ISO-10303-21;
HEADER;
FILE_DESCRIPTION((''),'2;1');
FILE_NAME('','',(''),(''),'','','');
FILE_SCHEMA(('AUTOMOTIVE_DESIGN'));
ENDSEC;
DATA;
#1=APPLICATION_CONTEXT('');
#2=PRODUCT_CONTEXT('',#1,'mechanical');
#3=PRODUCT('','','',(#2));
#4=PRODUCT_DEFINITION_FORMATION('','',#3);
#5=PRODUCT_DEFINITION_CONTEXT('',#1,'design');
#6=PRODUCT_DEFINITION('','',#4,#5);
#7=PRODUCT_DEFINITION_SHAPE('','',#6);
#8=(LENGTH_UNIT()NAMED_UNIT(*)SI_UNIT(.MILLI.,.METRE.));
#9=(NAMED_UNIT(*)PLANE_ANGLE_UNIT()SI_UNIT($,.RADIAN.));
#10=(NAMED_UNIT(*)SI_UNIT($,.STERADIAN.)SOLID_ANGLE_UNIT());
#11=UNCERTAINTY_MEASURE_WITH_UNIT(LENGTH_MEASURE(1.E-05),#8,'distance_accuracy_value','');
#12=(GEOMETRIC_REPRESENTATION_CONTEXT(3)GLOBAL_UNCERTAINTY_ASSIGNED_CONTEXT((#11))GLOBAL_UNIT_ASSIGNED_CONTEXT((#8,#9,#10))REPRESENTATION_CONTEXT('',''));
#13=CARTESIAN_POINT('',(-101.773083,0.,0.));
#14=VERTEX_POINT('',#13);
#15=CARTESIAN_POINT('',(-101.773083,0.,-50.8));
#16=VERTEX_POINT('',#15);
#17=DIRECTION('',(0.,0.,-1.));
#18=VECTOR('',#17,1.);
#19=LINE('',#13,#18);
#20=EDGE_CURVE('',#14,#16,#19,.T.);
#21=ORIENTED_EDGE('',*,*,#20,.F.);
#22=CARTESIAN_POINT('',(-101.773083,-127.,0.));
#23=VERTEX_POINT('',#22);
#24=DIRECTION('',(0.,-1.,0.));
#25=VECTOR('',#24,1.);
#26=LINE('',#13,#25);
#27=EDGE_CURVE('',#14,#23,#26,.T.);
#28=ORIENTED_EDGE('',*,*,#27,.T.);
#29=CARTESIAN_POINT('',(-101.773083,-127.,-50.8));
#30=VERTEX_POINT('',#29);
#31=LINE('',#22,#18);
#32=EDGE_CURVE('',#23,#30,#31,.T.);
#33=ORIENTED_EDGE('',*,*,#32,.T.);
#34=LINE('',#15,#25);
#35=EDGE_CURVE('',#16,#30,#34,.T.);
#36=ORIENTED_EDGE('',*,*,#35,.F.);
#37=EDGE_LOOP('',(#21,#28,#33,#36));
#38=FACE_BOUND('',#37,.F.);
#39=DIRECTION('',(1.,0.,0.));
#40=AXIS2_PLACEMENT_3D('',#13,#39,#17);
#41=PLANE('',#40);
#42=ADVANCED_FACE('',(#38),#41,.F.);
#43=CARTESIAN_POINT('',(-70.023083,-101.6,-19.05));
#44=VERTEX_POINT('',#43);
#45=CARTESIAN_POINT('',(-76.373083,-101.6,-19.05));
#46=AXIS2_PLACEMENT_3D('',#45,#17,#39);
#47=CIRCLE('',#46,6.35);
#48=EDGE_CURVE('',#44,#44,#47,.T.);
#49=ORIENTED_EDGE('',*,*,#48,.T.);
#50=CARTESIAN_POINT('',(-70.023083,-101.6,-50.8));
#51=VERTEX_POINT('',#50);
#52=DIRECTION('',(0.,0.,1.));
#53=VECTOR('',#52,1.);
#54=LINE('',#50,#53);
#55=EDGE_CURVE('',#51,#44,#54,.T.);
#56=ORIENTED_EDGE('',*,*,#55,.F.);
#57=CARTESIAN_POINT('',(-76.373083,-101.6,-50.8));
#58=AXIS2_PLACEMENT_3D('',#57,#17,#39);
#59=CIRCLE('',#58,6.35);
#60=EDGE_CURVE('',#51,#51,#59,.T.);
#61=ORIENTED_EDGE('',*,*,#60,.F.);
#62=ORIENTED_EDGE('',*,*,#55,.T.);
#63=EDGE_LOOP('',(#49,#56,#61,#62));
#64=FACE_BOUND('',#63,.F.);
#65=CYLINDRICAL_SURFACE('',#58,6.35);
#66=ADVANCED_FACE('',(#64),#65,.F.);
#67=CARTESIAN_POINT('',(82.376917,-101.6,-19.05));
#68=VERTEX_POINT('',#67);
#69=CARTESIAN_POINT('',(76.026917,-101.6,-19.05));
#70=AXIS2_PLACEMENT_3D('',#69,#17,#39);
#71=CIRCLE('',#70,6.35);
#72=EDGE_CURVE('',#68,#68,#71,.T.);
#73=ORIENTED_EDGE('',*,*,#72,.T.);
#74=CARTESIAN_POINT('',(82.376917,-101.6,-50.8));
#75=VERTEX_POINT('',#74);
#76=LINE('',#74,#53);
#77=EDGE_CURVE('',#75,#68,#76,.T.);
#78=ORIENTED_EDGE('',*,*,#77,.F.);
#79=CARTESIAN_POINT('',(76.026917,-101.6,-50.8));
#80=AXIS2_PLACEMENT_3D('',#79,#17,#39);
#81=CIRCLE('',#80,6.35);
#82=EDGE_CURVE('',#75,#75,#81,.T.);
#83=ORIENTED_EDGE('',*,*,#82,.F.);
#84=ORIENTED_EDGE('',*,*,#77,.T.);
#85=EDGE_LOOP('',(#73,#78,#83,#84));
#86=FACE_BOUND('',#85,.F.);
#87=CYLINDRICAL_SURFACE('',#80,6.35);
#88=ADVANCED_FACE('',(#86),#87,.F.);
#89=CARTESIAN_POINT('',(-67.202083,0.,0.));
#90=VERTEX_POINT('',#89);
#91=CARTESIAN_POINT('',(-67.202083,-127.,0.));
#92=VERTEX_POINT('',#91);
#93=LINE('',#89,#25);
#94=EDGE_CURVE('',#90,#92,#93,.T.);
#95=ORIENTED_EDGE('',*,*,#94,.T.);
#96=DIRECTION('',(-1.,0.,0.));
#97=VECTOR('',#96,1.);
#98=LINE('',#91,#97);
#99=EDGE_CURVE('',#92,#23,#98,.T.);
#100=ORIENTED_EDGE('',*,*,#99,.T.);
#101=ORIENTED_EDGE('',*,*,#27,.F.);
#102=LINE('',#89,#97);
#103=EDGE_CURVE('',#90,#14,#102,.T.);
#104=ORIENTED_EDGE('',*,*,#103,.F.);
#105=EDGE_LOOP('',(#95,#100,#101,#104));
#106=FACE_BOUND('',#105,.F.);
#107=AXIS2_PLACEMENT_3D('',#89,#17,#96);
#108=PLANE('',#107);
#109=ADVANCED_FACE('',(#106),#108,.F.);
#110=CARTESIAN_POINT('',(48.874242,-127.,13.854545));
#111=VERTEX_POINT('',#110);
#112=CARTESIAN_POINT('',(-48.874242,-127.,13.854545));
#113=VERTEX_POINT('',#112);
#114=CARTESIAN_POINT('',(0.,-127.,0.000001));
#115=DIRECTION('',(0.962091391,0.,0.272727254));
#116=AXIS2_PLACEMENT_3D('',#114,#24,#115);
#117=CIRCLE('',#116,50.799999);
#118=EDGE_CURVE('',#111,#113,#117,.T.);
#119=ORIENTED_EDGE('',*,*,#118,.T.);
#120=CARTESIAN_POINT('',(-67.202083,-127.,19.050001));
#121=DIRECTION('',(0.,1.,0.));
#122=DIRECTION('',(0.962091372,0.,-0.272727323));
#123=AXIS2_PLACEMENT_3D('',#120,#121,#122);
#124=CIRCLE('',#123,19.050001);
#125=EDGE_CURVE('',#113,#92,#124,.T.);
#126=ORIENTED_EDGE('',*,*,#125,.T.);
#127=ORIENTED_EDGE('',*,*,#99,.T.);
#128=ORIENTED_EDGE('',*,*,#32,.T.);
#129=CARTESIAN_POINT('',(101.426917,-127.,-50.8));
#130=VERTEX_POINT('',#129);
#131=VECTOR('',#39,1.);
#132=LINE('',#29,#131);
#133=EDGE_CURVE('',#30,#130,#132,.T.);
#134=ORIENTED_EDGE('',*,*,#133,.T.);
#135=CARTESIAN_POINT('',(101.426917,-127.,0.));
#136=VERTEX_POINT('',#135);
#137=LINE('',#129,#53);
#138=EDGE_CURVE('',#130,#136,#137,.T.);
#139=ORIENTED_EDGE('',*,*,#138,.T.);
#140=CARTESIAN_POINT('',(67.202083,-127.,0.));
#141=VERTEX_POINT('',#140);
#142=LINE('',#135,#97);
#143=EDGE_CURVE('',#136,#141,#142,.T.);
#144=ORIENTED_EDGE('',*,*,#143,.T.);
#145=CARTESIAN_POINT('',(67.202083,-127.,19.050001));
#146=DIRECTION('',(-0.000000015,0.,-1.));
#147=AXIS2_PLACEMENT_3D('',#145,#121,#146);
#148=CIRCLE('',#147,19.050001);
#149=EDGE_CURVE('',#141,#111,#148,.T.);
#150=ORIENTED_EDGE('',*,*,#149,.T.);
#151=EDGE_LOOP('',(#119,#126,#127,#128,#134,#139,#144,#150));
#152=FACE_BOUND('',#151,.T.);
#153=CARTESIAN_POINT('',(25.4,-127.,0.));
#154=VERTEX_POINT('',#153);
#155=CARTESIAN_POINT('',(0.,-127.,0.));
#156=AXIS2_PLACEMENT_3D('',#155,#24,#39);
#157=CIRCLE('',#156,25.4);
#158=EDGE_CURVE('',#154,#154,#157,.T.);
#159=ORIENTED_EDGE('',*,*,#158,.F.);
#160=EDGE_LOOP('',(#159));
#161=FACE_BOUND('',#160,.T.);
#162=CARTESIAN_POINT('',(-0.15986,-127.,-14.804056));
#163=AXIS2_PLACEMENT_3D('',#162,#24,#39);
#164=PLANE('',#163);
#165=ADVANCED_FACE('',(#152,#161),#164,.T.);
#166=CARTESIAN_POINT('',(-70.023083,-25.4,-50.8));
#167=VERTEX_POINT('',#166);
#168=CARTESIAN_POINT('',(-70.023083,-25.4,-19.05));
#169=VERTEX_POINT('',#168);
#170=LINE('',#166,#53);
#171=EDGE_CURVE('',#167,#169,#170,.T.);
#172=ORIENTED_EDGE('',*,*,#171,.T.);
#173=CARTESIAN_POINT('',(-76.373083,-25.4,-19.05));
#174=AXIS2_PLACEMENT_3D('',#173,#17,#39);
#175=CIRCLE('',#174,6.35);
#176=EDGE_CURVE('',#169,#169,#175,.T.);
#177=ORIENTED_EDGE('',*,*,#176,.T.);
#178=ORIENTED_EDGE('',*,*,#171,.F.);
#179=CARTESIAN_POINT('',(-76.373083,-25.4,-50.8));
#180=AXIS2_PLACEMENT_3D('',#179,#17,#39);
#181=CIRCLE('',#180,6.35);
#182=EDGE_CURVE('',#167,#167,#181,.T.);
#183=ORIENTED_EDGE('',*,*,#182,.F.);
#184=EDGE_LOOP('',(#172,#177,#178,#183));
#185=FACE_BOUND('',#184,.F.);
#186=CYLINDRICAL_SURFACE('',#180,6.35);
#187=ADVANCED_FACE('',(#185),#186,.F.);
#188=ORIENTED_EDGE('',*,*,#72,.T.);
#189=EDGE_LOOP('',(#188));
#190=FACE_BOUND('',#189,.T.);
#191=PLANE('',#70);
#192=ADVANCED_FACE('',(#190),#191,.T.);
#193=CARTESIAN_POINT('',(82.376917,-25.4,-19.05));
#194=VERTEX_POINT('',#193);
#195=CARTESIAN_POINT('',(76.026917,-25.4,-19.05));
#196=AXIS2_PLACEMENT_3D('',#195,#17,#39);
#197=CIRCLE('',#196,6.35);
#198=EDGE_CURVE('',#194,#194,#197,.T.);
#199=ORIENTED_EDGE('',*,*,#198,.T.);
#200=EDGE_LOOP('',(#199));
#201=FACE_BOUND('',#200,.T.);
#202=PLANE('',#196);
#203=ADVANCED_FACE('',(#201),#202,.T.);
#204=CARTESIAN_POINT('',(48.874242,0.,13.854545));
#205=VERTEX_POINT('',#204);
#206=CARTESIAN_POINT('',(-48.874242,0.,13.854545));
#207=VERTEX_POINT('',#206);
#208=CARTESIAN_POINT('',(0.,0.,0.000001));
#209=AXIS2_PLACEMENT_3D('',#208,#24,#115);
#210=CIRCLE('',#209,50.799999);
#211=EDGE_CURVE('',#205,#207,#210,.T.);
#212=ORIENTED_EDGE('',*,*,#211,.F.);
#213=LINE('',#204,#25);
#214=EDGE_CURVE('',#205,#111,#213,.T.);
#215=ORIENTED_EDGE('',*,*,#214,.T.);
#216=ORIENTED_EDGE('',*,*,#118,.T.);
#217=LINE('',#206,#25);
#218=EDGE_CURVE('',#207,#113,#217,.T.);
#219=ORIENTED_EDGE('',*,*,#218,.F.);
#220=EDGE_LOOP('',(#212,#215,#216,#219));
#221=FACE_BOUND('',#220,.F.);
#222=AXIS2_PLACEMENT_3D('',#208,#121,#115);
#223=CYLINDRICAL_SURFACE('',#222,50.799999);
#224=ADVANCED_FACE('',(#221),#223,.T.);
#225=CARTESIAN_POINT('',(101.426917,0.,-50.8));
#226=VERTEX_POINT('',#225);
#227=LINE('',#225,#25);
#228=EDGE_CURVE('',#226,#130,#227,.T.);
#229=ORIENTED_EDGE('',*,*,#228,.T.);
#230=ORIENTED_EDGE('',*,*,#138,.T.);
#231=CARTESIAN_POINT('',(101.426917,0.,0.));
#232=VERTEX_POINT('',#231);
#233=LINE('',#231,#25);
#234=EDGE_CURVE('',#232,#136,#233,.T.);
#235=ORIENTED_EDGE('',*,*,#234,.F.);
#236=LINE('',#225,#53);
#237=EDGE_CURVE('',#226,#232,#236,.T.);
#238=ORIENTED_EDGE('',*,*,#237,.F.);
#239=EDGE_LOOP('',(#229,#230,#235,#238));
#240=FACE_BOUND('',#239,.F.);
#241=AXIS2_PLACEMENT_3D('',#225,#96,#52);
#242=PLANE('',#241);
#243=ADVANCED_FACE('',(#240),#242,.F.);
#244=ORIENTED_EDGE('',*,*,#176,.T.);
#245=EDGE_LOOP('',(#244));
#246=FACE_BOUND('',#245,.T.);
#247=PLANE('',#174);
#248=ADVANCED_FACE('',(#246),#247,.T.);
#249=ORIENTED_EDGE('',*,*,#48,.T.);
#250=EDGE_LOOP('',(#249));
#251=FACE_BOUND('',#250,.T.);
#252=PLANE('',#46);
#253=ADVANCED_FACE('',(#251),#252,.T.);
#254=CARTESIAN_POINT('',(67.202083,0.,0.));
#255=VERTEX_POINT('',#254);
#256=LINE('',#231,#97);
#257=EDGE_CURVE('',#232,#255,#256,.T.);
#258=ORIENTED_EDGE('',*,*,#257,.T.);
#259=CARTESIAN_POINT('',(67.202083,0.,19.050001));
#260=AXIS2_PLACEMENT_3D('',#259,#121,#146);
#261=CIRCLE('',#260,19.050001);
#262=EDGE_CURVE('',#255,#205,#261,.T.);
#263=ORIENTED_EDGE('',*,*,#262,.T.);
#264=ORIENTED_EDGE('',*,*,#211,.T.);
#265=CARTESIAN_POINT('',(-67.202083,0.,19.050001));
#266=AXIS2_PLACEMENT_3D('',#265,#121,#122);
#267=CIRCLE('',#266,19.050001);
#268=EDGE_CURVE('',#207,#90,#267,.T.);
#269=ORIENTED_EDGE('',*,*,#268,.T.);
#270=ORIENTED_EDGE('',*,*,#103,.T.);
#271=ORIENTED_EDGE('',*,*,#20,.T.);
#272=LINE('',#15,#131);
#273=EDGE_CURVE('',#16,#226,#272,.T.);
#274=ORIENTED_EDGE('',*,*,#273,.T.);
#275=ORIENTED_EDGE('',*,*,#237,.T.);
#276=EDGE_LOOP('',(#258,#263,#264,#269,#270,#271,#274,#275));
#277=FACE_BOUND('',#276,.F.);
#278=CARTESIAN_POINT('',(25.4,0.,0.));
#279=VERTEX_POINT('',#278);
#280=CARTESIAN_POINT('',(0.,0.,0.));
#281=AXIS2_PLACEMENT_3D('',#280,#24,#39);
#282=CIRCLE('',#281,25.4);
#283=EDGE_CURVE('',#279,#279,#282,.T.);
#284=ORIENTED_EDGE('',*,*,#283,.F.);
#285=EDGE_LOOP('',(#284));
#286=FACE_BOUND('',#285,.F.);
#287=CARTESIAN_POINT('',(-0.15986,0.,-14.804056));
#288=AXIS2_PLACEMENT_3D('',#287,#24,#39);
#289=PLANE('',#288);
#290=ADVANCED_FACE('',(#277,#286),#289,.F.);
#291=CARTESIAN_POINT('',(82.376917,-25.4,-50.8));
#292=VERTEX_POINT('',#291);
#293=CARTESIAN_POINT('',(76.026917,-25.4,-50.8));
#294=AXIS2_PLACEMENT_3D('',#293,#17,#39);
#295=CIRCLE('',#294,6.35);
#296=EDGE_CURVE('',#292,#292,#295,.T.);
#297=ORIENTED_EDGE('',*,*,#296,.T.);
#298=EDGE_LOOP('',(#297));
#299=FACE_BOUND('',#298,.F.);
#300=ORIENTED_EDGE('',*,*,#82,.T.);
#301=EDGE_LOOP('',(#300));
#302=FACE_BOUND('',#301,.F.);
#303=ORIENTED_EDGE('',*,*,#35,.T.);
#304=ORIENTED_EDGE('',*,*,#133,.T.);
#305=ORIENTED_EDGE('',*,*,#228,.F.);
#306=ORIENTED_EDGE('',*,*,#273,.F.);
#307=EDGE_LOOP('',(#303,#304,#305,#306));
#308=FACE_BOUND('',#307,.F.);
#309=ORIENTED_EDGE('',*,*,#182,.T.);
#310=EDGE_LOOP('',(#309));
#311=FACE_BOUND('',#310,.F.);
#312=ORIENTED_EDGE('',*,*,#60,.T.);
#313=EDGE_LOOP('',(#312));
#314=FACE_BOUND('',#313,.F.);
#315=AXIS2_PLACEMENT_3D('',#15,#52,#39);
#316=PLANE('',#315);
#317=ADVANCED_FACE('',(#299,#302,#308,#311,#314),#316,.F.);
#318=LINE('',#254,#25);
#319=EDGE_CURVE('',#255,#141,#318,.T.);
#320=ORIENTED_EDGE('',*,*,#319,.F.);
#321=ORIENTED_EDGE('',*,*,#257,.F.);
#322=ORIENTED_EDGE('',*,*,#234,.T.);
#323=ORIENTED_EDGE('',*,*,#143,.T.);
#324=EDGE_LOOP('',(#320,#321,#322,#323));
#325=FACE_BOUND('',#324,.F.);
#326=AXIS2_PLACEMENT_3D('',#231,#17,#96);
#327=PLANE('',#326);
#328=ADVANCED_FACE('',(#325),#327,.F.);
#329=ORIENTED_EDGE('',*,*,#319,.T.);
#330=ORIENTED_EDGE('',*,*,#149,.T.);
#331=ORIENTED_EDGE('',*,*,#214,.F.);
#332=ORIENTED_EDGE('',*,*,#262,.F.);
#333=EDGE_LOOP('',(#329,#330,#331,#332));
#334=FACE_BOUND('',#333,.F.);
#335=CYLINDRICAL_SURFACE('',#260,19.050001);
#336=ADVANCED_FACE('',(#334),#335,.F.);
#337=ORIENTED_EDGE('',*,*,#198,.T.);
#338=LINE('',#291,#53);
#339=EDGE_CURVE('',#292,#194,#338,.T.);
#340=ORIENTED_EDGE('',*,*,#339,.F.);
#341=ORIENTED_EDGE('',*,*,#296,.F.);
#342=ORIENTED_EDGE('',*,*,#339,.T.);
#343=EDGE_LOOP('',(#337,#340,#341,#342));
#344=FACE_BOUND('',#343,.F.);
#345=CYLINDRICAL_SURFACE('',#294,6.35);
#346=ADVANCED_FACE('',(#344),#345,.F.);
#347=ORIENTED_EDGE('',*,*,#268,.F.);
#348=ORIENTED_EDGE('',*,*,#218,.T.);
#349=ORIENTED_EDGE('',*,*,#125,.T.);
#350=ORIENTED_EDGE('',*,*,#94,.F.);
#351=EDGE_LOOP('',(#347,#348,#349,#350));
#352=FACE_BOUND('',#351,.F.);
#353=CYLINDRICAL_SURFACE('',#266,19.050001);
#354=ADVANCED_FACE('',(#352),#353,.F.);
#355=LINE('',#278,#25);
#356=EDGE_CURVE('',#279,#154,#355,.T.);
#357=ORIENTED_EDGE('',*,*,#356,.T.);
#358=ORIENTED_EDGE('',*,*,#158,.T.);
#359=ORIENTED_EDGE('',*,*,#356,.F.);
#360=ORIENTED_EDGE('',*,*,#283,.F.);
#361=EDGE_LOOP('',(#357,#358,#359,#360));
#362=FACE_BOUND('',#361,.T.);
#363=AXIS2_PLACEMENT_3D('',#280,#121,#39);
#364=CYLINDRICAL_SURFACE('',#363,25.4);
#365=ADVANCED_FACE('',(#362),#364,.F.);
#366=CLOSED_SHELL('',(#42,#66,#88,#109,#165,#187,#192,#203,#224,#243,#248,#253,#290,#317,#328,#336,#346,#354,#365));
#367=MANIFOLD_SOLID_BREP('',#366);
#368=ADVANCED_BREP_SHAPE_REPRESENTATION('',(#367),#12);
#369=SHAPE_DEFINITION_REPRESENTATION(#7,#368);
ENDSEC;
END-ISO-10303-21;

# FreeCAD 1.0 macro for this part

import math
import FreeCAD as App
import Part
import Sketcher

V = App.Vector
Q = App.Units.Quantity

doc = App.newDocument("Part")
body = doc.addObject("PartDesign::Body", "Body")

sketch1 = body.newObject("Sketcher::SketchObject", "Sketch")
sketch1.AttachmentSupport = (doc.getObject("XZ_Plane"), [""])
sketch1.MapMode = "FlatFace"
sketch1.addGeometry([
    Part.LineSegment(V(101, -51, 0), V(101, 0, 0)),
    Part.LineSegment(V(101, 0, 0), V(67, 0, 0)),
    Part.ArcOfCircle(Part.Circle(V(67, 19, 0), V(0, 0, 1), 19), math.radians(-164), math.radians(-90)),
    Part.ArcOfCircle(Part.Circle(V(0, 0, 0), V(0, 0, 1), 51), math.radians(16), math.radians(164)),
    Part.ArcOfCircle(Part.Circle(V(-67, 19, 0), V(0, 0, 1), 19), math.radians(-90), math.radians(-16)),
    Part.LineSegment(V(-67, 0, 0), V(-102, 0, 0)),
    Part.LineSegment(V(-102, 0, 0), V(-102, -51, 0)),
    Part.LineSegment(V(-102, -51, 0), V(101, -51, 0)),
    Part.Circle(V(0, 0, 0), V(0, 0, 1), 25),
], False)
sketch1.addConstraint([
    Sketcher.Constraint("Coincident", 0, 2, 1, 1),
    Sketcher.Constraint("Tangent", 1, 2, 2, 2),
    Sketcher.Constraint("Tangent", 2, 1, 3, 1),
    Sketcher.Constraint("Tangent", 3, 2, 4, 2),
    Sketcher.Constraint("Tangent", 4, 1, 5, 1),
    Sketcher.Constraint("Coincident", 5, 2, 6, 1),
    Sketcher.Constraint("Coincident", 6, 2, 7, 1),
    Sketcher.Constraint("Coincident", 7, 2, 0, 1),
    Sketcher.Constraint("Vertical", 0),
    Sketcher.Constraint("Horizontal", 1),
    Sketcher.Constraint("Horizontal", 5),
    Sketcher.Constraint("Vertical", 6),
    Sketcher.Constraint("Horizontal", 7),
    Sketcher.Constraint("Coincident", 3, 3, -1, 1),
    Sketcher.Constraint("Coincident", 8, 3, -1, 1),
    Sketcher.Constraint("Equal", 2, 4),
    Sketcher.Constraint("Symmetric", 1, 2, 4, 1, -1, 1),
    Sketcher.Constraint("Diameter", 8, Q("2 in")),
    Sketcher.Constraint("Radius", 3, Q("2 in")),
    Sketcher.Constraint("DistanceX", 7, 1, 7, 2, Q("8 in")),
    Sketcher.Constraint("DistanceY", 0, 1, 0, 2, Q("2 in")),
    Sketcher.Constraint("Radius", 2, Q("0.75 in")),
    Sketcher.Constraint("DistanceX", 5, 2, 5, 1, 34.571),
])
pad1 = body.newObject("PartDesign::Pad", "Pad")
pad1.Profile = sketch1
pad1.Length = Q("5 in")

sketch2 = body.newObject("Sketcher::SketchObject", "Sketch001")
sketch2.AttachmentSupport = (doc.getObject("XY_Plane"), [""])
sketch2.MapMode = "FlatFace"
sketch2.AttachmentOffset = App.Placement(V(0, 0, -2 * 25.4), App.Rotation())
sketch2.addGeometry([
    Part.Circle(V(-76, -102, 0), V(0, 0, 1), 6),
    Part.Circle(V(-76, -25, 0), V(0, 0, 1), 6),
    Part.Circle(V(76, -102, 0), V(0, 0, 1), 6),
    Part.Circle(V(76, -25, 0), V(0, 0, 1), 6),
], False)
sketch2.addConstraint([
    Sketcher.Constraint("Equal", 0, 1),
    Sketcher.Constraint("Equal", 1, 2),
    Sketcher.Constraint("Equal", 2, 3),
    Sketcher.Constraint("Horizontal", 0, 3, 2, 3),
    Sketcher.Constraint("Horizontal", 1, 3, 3, 3),
    Sketcher.Constraint("Vertical", 0, 3, 1, 3),
    Sketcher.Constraint("Vertical", 2, 3, 3, 3),
    Sketcher.Constraint("Diameter", 0, Q("0.5 in")),
    Sketcher.Constraint("DistanceY", 0, 3, -1, 1, Q("4 in")),
    Sketcher.Constraint("DistanceY", 1, 3, -1, 1, Q("1 in")),
    Sketcher.Constraint("DistanceX", 0, 3, 2, 3, Q("6 in")),
    Sketcher.Constraint("DistanceX", 0, 3, -1, 1, 76.373083),
])
pocket1 = body.newObject("PartDesign::Pocket", "Pocket")
pocket1.Profile = sketch2
pocket1.Length = Q("1.25 in")
pocket1.Reversed = True

doc.recompute()
